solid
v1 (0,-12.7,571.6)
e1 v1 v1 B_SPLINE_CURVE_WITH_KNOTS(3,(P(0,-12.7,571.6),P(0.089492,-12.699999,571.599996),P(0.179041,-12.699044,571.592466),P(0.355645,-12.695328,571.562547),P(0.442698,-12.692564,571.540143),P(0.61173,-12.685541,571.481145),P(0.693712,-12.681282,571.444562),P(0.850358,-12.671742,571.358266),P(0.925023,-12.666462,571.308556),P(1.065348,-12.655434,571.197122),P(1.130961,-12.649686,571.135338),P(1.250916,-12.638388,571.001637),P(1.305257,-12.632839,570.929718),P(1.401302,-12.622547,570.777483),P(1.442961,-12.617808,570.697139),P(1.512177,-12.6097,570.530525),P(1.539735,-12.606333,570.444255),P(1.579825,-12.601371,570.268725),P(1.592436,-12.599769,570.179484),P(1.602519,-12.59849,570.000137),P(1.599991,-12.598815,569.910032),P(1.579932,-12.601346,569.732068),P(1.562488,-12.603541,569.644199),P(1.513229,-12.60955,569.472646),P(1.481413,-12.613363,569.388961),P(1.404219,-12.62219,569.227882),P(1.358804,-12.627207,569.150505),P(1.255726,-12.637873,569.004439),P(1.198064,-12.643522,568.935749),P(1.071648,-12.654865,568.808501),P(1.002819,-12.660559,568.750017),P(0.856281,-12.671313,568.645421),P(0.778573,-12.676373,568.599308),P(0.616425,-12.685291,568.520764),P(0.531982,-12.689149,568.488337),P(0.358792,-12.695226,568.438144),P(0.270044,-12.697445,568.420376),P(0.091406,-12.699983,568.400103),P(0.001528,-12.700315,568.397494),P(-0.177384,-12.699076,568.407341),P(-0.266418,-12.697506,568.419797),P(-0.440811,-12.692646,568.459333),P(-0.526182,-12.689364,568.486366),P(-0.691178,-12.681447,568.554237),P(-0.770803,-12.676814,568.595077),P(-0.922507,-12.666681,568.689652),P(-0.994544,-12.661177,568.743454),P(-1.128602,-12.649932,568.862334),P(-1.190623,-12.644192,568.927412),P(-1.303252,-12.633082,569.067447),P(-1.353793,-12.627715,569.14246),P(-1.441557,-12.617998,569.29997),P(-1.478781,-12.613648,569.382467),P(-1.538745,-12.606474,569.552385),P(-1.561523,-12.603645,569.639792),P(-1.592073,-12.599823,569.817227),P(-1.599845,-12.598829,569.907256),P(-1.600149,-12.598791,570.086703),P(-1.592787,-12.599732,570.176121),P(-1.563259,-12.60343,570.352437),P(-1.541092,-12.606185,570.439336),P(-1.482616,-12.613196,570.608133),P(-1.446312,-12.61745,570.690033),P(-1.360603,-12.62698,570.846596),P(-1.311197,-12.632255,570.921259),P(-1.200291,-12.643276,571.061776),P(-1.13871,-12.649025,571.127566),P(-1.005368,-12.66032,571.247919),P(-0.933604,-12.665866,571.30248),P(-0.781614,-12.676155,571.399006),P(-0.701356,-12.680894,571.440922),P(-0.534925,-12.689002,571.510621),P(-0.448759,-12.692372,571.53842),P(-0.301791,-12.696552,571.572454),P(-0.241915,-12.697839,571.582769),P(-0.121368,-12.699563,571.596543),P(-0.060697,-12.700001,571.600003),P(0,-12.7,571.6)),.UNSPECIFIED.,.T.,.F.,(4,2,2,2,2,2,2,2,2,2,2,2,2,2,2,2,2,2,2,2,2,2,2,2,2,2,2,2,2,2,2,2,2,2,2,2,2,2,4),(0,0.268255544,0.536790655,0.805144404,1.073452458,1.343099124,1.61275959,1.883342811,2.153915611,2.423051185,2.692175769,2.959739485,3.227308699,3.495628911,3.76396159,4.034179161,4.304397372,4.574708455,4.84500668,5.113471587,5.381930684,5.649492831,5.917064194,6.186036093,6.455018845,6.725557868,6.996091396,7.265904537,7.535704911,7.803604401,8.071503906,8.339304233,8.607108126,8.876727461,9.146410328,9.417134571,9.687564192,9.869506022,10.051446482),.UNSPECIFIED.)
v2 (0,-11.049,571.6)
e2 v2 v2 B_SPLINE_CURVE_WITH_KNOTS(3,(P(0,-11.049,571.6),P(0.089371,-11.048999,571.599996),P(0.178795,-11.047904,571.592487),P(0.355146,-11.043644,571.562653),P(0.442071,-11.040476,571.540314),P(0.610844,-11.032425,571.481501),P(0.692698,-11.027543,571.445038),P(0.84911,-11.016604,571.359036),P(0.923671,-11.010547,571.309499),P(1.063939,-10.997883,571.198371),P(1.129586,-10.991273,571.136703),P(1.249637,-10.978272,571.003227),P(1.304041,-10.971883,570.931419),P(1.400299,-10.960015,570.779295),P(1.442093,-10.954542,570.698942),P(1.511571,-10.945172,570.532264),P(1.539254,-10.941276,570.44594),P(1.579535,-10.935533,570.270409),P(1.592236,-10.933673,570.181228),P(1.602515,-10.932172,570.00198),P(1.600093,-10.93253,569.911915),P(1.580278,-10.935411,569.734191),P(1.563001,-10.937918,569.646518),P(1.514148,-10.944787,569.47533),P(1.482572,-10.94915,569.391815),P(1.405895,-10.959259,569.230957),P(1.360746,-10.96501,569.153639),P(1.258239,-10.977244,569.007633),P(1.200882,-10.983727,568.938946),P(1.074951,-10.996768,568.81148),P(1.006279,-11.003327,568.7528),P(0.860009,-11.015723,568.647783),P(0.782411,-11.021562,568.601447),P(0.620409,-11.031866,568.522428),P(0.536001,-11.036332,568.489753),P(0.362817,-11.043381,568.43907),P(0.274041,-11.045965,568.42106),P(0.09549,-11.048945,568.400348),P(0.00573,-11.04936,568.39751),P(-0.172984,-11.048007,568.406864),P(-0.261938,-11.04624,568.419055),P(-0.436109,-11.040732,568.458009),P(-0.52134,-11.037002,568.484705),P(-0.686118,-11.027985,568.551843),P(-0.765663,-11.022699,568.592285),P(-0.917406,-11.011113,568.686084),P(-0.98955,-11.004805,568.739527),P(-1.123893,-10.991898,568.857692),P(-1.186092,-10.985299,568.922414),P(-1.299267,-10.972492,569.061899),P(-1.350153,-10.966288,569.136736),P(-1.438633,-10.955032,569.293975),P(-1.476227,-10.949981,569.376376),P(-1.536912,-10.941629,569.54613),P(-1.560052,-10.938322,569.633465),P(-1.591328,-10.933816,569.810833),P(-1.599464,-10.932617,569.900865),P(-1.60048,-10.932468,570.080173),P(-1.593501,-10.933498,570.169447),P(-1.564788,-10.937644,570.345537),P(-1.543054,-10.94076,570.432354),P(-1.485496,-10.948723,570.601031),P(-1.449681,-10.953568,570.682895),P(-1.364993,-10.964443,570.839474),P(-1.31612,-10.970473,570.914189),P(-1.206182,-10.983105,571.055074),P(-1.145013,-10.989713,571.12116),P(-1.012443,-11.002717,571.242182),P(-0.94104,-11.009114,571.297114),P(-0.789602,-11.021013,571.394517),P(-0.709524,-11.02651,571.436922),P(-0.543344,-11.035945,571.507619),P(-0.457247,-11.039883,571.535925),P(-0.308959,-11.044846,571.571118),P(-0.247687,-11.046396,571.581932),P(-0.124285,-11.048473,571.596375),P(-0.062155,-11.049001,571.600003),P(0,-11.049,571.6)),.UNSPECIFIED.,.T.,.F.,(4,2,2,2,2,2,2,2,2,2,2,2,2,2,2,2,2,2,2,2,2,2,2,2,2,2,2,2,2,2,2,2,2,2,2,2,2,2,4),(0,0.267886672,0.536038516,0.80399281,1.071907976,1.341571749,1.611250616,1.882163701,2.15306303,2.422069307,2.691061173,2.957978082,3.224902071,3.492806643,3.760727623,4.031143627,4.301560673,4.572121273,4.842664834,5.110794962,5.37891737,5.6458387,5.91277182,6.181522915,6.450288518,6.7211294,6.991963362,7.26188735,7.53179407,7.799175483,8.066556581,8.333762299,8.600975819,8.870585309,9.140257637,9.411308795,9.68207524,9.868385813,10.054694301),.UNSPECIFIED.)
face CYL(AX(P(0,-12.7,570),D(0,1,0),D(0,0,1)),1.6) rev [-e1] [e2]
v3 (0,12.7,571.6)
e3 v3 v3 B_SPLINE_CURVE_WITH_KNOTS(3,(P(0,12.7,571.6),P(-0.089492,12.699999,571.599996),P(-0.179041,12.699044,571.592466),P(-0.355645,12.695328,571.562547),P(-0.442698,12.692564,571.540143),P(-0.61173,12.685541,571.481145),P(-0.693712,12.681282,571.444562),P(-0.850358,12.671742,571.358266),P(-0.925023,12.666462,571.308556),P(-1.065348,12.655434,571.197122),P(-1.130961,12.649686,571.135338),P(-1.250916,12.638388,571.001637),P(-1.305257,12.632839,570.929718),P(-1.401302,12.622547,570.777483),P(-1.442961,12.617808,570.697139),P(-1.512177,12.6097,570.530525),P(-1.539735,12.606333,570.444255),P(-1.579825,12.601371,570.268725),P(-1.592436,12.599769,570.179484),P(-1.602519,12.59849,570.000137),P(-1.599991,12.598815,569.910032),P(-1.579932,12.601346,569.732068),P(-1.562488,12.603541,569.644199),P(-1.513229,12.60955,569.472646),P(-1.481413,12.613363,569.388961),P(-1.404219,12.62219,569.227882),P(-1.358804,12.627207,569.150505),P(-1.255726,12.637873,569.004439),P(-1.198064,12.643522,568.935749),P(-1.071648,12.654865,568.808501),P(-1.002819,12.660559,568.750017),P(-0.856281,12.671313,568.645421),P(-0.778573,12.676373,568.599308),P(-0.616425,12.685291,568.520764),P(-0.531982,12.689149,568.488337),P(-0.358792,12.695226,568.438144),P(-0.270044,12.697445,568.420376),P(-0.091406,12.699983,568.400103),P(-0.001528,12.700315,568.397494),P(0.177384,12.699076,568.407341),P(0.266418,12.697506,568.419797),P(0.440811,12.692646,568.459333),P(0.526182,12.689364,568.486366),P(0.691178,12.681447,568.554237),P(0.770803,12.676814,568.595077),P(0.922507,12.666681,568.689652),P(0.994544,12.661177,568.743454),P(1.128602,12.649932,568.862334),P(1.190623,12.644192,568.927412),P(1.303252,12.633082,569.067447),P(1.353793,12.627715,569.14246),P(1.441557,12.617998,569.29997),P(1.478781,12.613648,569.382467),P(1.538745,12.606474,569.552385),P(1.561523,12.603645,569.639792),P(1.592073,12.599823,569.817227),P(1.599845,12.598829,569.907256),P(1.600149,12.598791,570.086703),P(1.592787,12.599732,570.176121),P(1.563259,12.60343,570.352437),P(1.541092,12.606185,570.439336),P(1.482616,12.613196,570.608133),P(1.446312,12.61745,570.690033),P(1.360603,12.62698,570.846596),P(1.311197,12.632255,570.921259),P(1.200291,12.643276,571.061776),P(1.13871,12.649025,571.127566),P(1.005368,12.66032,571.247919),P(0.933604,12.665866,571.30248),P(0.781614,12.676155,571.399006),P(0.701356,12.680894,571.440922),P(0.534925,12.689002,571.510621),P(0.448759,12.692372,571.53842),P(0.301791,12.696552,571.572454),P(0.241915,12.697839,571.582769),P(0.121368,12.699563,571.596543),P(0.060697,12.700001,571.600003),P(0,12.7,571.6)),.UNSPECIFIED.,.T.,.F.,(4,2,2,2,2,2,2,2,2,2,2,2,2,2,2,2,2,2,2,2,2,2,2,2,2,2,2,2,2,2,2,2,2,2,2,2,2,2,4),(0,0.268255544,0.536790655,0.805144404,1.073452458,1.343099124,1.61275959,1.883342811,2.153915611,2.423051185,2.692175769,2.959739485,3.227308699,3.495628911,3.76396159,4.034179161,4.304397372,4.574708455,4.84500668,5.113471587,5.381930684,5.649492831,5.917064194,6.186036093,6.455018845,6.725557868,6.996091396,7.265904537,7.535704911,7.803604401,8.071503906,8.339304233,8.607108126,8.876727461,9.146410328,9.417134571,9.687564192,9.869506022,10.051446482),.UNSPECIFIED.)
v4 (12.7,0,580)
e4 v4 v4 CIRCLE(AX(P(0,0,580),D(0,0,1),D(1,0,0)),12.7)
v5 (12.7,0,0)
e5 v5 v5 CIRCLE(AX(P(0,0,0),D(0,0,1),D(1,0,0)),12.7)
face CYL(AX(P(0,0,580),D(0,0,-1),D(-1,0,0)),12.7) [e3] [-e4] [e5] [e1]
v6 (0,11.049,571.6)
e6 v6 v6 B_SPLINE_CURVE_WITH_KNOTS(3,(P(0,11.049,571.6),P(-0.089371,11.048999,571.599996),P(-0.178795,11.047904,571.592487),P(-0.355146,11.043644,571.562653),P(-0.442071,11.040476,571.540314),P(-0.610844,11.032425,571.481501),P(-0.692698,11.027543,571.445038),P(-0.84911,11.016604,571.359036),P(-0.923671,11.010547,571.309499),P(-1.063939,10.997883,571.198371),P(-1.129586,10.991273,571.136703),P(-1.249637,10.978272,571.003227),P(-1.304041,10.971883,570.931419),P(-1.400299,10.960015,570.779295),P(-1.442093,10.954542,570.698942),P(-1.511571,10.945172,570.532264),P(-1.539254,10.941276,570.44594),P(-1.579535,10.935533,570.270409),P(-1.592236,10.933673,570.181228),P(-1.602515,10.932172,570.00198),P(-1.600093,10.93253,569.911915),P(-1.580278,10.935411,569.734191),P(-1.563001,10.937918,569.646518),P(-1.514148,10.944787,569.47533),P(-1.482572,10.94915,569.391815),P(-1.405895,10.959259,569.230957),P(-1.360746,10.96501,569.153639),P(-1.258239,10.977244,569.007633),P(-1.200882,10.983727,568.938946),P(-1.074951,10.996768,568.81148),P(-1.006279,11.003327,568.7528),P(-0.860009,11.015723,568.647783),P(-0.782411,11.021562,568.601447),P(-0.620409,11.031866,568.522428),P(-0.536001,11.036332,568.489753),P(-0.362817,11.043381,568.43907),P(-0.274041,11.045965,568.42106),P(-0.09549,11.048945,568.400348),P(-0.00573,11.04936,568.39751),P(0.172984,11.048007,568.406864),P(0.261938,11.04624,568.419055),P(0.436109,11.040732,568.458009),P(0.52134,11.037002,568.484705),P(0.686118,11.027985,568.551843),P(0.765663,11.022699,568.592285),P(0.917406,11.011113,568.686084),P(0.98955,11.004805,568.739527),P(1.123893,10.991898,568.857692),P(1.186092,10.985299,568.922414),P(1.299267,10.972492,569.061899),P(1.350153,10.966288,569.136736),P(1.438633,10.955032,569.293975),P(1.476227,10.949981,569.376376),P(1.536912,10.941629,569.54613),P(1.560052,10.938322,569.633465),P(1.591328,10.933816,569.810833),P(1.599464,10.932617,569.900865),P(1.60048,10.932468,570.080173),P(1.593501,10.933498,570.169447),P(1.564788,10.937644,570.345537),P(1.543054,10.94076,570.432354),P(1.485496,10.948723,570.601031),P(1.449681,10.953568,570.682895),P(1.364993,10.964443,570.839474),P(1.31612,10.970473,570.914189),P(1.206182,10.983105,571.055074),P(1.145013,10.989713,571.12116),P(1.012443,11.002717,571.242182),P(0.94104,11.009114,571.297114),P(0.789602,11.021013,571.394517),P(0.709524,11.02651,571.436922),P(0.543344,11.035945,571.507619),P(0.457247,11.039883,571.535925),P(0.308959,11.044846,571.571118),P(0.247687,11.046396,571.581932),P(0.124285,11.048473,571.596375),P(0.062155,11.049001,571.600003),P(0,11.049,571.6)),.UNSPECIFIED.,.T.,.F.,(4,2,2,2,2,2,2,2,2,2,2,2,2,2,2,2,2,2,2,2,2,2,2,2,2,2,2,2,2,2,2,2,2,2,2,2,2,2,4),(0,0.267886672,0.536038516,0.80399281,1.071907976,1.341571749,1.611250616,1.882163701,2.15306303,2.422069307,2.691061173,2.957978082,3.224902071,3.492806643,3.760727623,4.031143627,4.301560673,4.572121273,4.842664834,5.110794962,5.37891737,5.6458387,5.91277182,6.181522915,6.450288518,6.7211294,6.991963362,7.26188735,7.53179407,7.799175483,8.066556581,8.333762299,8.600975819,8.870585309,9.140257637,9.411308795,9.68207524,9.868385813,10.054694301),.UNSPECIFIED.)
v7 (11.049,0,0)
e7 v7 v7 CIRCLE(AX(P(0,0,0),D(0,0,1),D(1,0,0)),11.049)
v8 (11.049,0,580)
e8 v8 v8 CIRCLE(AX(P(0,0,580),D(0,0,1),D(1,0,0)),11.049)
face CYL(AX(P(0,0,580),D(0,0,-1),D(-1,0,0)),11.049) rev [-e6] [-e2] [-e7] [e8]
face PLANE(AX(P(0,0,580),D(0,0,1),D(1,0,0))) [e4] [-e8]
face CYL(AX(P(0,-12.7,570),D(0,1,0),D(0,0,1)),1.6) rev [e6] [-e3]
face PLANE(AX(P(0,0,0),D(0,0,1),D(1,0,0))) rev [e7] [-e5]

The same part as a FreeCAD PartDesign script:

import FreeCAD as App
import Part
import Sketcher
Q = App.Units.Quantity

doc = App.newDocument("Part")
params = doc.addObject("Spreadsheet::Sheet", "Params")
for row, (alias, value) in enumerate([
    ("sketch1_diameter", "25.4 mm"),
    ("pad1_length", "580 mm"),
    ("sketch2_diameter", "3.2 mm"),
], start=1):
    params.set(f"A{row}", alias)
    params.set(f"B{row}", "=" + value)
    params.setAlias(f"B{row}", alias)

body = doc.addObject("PartDesign::Body", "Body")

# Sketch on XY plane
sketch1 = doc.addObject("Sketcher::SketchObject", "Sketch")
body.addObject(sketch1)
sketch1.AttachmentSupport = (doc.XY_Plane, [""])
sketch1.MapMode = "FlatFace"
sketch1.addGeometry(Part.Circle(App.Vector(0, 0, 0), App.Vector(0, 0, 1), 12.7), False)
sketch1.addGeometry(Part.Circle(App.Vector(0, 0, 0), App.Vector(0, 0, 1), 11.049), False)
sketch1.addConstraint(Sketcher.Constraint("Coincident", 0, 3, -1, 1))
sketch1.addConstraint(Sketcher.Constraint("Coincident", 1, 3, -1, 1))
sketch1.addConstraint(Sketcher.Constraint("Diameter", 0, Q("25.4 mm")))
sketch1.addConstraint(Sketcher.Constraint("Diameter", 1, Q("22.098 mm")))
sketch1.setExpression("Constraints[2]", "Params.sketch1_diameter")
pad1 = doc.addObject("PartDesign::Pad", "Pad")
body.addObject(pad1)
pad1.Profile = sketch1
pad1.setExpression("Length", "Params.pad1_length")

# Sketch on XZ plane
sketch2 = doc.addObject("Sketcher::SketchObject", "Sketch001")
body.addObject(sketch2)
sketch2.AttachmentSupport = (doc.XZ_Plane, [""])
sketch2.MapMode = "FlatFace"
sketch2.addGeometry(Part.Circle(App.Vector(0, 570, 0), App.Vector(0, 0, 1), 1.6), False)
sketch2.addConstraint(Sketcher.Constraint("PointOnObject", 0, 3, -2))
sketch2.addConstraint(Sketcher.Constraint("Diameter", 0, Q("3.2 mm")))
sketch2.addConstraint(Sketcher.Constraint("DistanceY", -1, 1, 0, 3, Q("570 mm")))
sketch2.setExpression("Constraints[1]", "Params.sketch2_diameter")
pocket1 = doc.addObject("PartDesign::Pocket", "Pocket")
body.addObject(pocket1)
pocket1.Profile = sketch2
pocket1.Type = "ThroughAll"
pocket1.Midplane = True

doc.recompute()
